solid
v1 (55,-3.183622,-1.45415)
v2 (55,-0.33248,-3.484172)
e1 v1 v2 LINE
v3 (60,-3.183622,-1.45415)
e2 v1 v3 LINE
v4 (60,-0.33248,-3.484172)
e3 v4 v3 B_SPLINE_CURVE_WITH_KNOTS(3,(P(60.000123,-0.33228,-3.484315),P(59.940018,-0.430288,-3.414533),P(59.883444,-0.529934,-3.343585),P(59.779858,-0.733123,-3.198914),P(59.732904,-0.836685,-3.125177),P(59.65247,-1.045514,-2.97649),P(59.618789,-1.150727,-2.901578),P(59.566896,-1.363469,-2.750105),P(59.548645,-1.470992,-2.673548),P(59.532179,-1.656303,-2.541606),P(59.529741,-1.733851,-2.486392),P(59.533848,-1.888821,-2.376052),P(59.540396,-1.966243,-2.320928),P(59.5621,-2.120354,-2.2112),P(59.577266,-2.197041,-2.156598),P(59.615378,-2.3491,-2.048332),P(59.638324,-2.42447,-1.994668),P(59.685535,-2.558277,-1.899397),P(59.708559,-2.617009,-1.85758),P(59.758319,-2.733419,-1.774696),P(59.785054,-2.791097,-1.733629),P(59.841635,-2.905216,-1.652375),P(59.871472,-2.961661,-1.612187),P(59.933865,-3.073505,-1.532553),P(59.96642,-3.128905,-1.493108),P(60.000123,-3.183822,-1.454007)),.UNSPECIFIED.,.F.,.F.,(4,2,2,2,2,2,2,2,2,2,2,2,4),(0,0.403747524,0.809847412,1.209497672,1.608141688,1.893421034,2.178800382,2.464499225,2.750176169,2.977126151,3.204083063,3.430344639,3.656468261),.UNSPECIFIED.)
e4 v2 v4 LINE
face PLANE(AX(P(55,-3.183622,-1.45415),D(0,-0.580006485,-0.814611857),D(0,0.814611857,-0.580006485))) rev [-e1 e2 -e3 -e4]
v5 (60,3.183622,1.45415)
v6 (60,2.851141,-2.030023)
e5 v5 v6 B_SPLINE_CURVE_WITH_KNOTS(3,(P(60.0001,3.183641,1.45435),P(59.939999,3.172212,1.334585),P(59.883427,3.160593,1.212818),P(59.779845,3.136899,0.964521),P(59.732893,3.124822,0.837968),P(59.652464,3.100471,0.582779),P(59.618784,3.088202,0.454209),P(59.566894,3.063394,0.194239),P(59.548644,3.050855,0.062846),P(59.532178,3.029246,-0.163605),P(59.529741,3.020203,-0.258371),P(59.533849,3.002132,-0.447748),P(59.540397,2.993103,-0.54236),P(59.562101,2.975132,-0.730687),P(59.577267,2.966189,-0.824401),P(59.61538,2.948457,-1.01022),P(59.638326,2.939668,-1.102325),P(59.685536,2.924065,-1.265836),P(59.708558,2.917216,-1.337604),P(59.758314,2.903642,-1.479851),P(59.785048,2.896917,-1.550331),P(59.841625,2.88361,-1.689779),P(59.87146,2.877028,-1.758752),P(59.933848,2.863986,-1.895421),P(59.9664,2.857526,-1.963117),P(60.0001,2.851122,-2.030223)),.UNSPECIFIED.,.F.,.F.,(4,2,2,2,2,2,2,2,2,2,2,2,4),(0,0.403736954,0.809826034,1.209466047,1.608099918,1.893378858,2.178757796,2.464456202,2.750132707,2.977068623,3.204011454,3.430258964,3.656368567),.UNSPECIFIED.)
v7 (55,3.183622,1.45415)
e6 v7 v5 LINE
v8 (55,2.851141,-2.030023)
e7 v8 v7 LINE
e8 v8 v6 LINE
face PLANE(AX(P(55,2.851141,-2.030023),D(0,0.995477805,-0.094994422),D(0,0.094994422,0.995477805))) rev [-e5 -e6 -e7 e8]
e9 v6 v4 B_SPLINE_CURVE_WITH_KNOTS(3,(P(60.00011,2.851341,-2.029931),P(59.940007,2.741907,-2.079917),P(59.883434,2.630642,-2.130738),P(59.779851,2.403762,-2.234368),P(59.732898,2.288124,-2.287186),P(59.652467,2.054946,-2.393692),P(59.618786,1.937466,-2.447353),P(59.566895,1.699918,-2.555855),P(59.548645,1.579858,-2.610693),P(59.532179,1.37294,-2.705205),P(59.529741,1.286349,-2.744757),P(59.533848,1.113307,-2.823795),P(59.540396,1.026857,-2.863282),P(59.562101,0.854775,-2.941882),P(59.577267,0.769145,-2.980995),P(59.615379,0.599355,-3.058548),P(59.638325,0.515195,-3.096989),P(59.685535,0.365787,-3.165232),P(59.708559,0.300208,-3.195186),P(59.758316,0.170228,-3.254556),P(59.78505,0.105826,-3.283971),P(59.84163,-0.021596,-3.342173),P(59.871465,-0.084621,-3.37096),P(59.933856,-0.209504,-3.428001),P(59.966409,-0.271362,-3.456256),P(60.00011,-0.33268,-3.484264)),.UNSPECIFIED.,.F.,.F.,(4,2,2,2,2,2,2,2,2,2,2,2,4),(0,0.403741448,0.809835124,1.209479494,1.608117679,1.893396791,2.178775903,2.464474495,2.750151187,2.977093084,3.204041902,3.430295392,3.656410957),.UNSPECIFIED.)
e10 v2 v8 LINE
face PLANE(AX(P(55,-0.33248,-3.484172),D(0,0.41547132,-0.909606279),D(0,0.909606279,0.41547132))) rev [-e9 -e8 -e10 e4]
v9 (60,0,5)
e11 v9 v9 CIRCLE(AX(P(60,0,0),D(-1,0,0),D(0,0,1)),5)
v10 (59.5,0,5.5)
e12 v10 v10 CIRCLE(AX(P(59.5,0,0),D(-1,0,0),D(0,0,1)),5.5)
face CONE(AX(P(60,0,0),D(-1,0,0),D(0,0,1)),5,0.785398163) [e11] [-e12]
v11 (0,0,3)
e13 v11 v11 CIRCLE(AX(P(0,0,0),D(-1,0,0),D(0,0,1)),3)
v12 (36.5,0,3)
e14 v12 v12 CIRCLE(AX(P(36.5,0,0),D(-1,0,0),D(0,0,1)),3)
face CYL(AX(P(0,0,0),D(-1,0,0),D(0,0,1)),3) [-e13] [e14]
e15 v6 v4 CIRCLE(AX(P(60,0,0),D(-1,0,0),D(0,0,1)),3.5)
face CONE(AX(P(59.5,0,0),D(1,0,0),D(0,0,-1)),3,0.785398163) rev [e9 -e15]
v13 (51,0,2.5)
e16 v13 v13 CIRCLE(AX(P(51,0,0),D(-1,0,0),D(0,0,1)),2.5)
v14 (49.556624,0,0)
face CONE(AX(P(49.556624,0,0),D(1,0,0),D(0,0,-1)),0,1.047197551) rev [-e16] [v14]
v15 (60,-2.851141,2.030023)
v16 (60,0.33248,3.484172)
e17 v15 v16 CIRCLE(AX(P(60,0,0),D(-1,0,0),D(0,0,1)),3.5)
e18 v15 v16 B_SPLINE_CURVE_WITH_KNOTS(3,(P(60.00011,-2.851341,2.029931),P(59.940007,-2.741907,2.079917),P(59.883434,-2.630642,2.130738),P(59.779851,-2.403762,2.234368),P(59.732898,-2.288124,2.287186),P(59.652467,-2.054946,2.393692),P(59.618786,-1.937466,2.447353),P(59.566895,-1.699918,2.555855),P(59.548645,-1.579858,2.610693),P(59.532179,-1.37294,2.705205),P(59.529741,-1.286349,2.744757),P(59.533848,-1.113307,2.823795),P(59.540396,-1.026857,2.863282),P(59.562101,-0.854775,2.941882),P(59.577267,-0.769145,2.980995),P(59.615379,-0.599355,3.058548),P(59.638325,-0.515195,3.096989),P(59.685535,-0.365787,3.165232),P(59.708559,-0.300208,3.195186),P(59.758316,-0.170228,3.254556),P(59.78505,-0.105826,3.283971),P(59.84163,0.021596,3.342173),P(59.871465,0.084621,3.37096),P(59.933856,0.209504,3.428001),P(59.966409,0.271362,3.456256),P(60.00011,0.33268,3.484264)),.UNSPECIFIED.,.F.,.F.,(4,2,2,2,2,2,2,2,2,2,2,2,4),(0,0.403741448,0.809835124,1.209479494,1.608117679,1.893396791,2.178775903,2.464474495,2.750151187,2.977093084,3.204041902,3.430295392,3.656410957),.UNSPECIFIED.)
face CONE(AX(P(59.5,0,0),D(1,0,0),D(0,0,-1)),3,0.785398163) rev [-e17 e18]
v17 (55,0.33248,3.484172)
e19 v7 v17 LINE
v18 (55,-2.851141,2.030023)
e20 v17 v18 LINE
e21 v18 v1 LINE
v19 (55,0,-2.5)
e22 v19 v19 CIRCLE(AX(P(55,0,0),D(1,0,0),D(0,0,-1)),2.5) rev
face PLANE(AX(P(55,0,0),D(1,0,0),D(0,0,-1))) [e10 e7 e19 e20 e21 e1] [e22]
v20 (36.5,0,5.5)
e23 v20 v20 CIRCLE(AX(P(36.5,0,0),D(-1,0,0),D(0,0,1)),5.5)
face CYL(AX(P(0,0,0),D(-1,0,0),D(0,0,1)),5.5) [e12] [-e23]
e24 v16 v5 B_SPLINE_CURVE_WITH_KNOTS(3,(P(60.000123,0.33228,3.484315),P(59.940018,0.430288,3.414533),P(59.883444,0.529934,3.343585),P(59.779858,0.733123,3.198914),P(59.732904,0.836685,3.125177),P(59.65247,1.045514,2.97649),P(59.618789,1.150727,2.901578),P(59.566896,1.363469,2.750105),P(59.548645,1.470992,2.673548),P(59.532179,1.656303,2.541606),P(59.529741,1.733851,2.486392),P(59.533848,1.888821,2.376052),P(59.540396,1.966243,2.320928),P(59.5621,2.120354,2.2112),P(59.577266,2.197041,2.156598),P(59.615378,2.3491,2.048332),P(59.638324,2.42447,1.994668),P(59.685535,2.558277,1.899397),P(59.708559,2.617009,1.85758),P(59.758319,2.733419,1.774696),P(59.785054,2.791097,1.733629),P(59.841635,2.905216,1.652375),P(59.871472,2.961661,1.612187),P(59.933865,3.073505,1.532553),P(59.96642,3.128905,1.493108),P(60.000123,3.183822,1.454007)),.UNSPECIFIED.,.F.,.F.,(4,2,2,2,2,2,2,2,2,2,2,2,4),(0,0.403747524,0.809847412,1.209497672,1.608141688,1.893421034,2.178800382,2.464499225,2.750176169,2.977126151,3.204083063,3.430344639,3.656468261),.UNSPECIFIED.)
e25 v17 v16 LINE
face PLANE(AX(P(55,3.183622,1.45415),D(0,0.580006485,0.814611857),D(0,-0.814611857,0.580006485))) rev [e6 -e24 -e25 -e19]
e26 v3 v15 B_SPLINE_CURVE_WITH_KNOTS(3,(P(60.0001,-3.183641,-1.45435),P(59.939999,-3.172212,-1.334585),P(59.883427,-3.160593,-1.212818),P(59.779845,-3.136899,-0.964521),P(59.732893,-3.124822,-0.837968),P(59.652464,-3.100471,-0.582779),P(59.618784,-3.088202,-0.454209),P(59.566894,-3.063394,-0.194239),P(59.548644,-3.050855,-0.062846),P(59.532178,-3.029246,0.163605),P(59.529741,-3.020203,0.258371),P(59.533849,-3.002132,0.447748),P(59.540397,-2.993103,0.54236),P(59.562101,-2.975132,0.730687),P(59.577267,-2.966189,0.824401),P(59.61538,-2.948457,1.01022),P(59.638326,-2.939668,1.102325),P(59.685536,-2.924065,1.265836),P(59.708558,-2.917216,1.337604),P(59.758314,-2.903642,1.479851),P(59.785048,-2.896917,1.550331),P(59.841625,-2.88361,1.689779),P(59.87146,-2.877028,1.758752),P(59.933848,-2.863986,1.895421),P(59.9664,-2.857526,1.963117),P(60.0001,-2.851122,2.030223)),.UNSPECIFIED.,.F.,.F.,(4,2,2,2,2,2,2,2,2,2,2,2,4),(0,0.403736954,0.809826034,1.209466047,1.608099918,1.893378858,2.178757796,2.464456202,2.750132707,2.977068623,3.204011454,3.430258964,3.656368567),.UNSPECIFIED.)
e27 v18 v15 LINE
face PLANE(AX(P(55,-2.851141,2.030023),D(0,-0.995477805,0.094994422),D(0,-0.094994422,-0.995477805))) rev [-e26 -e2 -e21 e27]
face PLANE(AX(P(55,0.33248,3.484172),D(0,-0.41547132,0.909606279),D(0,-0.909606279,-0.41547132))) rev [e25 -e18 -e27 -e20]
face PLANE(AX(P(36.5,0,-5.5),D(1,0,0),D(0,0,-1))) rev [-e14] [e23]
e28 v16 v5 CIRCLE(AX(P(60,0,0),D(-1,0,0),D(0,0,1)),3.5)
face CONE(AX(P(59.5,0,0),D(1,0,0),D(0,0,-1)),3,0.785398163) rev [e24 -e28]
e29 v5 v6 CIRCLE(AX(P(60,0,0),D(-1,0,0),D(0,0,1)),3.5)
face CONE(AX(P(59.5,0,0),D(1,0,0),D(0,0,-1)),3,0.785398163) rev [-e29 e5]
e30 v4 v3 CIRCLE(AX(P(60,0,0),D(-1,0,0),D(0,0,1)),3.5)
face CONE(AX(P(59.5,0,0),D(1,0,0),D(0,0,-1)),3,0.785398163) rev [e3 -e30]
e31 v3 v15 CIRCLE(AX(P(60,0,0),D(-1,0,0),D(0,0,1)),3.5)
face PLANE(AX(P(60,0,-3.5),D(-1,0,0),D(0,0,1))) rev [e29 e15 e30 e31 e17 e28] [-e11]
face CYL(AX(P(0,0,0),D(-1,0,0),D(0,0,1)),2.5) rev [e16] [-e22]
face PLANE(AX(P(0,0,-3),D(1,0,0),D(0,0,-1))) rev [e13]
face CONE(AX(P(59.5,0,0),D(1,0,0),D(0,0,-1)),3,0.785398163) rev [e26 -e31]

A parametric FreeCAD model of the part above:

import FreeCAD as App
import Part
import Sketcher
from FreeCAD import Vector
Q = App.Units.Quantity


def add_polygon(sketch, points):
    """Adds a closed chain of lines whose ends are joined by coincident constraints."""
    first, n = sketch.GeometryCount, len(points)
    for a, b in zip(points, points[1:] + points[:1]):
        sketch.addGeometry(Part.LineSegment(App.Vector(*a, 0), App.Vector(*b, 0)), False)
    for i in range(n):
        sketch.addConstraint(Sketcher.Constraint("Coincident", first + i, 2, first + (i + 1) % n, 1))

doc = App.newDocument("Part")
body = doc.addObject("PartDesign::Body", "Body")

# Sketch on XZ plane
sketch1 = body.newObject("Sketcher::SketchObject", "Sketch")
sketch1.AttachmentSupport = (doc.getObject("XZ_Plane"), [""])
sketch1.MapMode = "FlatFace"
add_polygon(sketch1, [(0, 0), (49.6, 0), (51, -2.5), (58, -2.5), (58, -3), (59.5, -3), (60, -3.5), (60, -5), (59.5, -5.5), (36.5, -5.5), (36.5, -3), (0, -3)])  # lines 0-11
sketch1.addConstraint([
    Sketcher.Constraint("Horizontal", 0),
    Sketcher.Constraint("Horizontal", 2),
    Sketcher.Constraint("Vertical", 3),
    Sketcher.Constraint("Horizontal", 4),
    Sketcher.Constraint("Vertical", 6),
    Sketcher.Constraint("Horizontal", 8),
    Sketcher.Constraint("Vertical", 9),
    Sketcher.Constraint("Horizontal", 10),
    Sketcher.Constraint("Vertical", 11),
    Sketcher.Constraint("Coincident", 11, 2, -1, 1),
    Sketcher.Constraint("Perpendicular", 5, 7),
    Sketcher.Constraint("Horizontal", 4, 2, 9, 2),
    Sketcher.Constraint("Vertical", 4, 2, 7, 2),
    Sketcher.Constraint("Equal", 4, 6),
    Sketcher.Constraint("Equal", 5, 7),
    Sketcher.Constraint("DistanceX", 2, 1, 2, 2, 7.0),
    Sketcher.Constraint("DistanceX", 8, 2, 8, 1, 23.0),
    Sketcher.Constraint("DistanceY", 11, 1, 11, 2, 3.0),
    Sketcher.Constraint("Angle", 1, Q("-60 deg")),
    Sketcher.Constraint("DistanceX", 4, 1, 4, 2, 1.5),
    Sketcher.Constraint("DistanceX", 10, 2, 10, 1, 36.5),
    Sketcher.Constraint("DistanceY", 3, 2, 3, 1, 0.5),
    Sketcher.Constraint("DistanceY", 9, 1, 9, 2, 2.5),
])
revolution = body.newObject("PartDesign::Revolution", "Revolution")
revolution.Profile = sketch1
revolution.ReferenceAxis = (sketch1, ["H_Axis"])
revolution.Angle = 360

# Sketch on YZ plane
sketch2 = body.newObject("Sketcher::SketchObject", "Sketch001")
sketch2.AttachmentSupport = (doc.getObject("YZ_Plane"), [""])
sketch2.MapMode = "FlatFace"
sketch2.AttachmentOffset = App.Placement(Vector(0, 0, 60), App.Rotation())
add_polygon(sketch2, [(-0.3, -3.5), (2.9, -2), (3.2, 1.5), (0.3, 3.5), (-2.9, 2), (-3.2, -1.5)])  # lines 0-5
sketch2.addConstraint([
    Sketcher.Constraint("Symmetric", 0, 2, 3, 2, -1, 1),
    Sketcher.Constraint("Symmetric", 1, 2, 4, 2, -1, 1),
    Sketcher.Constraint("Symmetric", 2, 2, 5, 2, -1, 1),
    Sketcher.Constraint("Equal", 0, 1),
    Sketcher.Constraint("Equal", 1, 2),
    Sketcher.Constraint("Distance", 0, 3.5),
    Sketcher.Constraint("DistanceY", 4, 2, 1, 2, 2.908299),
    Sketcher.Constraint("DistanceX", -1, 1, 0, 2, 2.851142),
    Sketcher.Constraint("DistanceX", -1, 1, 1, 2, 3.183622),
])
pocket1 = body.newObject("PartDesign::Pocket", "Pocket")
pocket1.Profile = sketch2
pocket1.Length = 5

doc.recompute()
